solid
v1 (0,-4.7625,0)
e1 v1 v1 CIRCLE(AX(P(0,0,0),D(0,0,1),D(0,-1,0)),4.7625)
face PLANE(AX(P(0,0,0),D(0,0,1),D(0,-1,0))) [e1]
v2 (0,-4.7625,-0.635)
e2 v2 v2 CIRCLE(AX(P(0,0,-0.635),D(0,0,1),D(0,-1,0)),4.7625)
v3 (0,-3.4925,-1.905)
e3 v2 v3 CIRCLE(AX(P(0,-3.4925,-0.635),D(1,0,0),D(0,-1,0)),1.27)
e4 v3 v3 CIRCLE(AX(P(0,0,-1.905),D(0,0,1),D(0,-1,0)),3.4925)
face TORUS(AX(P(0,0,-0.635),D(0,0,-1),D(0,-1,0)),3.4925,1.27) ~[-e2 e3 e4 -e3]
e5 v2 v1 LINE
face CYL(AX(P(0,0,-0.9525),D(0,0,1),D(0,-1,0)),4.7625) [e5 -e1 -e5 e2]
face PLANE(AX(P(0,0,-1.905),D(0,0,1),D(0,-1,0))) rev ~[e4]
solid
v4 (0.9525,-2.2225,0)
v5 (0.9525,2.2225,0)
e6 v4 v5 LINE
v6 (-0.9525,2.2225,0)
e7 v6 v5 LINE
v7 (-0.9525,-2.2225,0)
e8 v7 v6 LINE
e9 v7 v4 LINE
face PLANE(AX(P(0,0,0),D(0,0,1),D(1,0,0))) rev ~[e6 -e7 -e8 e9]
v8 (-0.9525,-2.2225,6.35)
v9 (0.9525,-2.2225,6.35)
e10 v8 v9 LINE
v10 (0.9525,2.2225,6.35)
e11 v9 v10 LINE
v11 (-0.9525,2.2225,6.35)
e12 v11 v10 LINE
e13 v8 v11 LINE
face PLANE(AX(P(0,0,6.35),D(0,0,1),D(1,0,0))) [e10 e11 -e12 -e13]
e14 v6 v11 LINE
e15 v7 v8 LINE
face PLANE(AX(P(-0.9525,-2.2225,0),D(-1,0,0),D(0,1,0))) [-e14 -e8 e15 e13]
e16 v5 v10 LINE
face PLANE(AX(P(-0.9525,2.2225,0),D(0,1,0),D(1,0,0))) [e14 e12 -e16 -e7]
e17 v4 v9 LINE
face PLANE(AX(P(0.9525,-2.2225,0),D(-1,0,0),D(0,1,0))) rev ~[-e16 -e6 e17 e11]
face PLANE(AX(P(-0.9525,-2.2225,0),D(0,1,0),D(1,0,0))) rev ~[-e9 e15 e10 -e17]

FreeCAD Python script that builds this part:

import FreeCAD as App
import Part
import Sketcher

V = App.Vector
Q = App.Units.Quantity


def edges_at(feature, points):
    """Names of the edges that pass closest to the given points."""
    edges = feature.Shape.Edges
    near = lambda p: min(range(len(edges)), key=lambda i: edges[i].distToShape(Part.Vertex(*p))[0])
    return sorted({f"Edge{near(p) + 1}" for p in points})


def add_polygon(sketch, points):
    """Adds a closed chain of lines whose ends are joined by coincident constraints."""
    first, n = sketch.GeometryCount, len(points)
    for a, b in zip(points, points[1:] + points[:1]):
        sketch.addGeometry(Part.LineSegment(App.Vector(*a, 0), App.Vector(*b, 0)), False)
    for i in range(n):
        sketch.addConstraint(Sketcher.Constraint("Coincident", first + i, 2, first + (i + 1) % n, 1))

doc = App.newDocument("Part")
params = doc.addObject("Spreadsheet::Sheet", "Params")
for row, (alias, value) in enumerate([
    ("sketch1_width", "0.1875 in"),
    ("sketch1_height", "0.075 in"),
    ("revolution_angle", "360 deg"),
    ("fillet_radius", "0.05 in"),
    ("sketch2_width", "0.075 in"),
    ("sketch2_height", "0.175 in"),
    ("pad1_length", "0.25 in"),
], start=1):
    params.set(f"A{row}", alias)
    params.set(f"B{row}", "=" + value)
    params.setAlias(f"B{row}", alias)

body = doc.addObject("PartDesign::Body", "Body")

# Sketch on YZ plane
sketch1 = body.newObject("Sketcher::SketchObject", "Sketch")
sketch1.AttachmentSupport = (doc.getObject("YZ_Plane"), [""])
sketch1.MapMode = "FlatFace"
add_polygon(sketch1, [(-4.8, 0), (-4.8, -1.9), (0, -1.9), (0, 0)])  # lines 0-3
sketch1.addConstraint([
    Sketcher.Constraint("Vertical", 0),
    Sketcher.Constraint("Horizontal", 1),
    Sketcher.Constraint("Vertical", 2),
    Sketcher.Constraint("Horizontal", 3),
    Sketcher.Constraint("Coincident", 2, 2, -1, 1),
    Sketcher.Constraint("DistanceX", 1, 1, 1, 2, Q("0.1875 in")),
    Sketcher.Constraint("DistanceY", 0, 2, 0, 1, Q("0.075 in")),
])
sketch1.setExpression("Constraints[9]", "Params.sketch1_width")
sketch1.setExpression("Constraints[10]", "Params.sketch1_height")
revolution = body.newObject("PartDesign::Revolution", "Revolution")
revolution.Profile = sketch1
revolution.ReferenceAxis = (sketch1, ["V_Axis"])
revolution.setExpression("Angle", "Params.revolution_angle")
doc.recompute()

fillet = body.newObject("PartDesign::Fillet", "Fillet")
fillet.Base = (revolution, edges_at(revolution, [(0, 4.763, -1.905)]))
fillet.setExpression("Radius", "Params.fillet_radius")
body2 = doc.addObject("PartDesign::Body", "Body001")

# Sketch on XY plane
sketch2 = body2.newObject("Sketcher::SketchObject", "Sketch001")
sketch2.AttachmentSupport = (doc.getObject("XY_Plane001"), [""])
sketch2.MapMode = "FlatFace"
add_polygon(sketch2, [(-1, 2.2), (-1, -2.2), (1, -2.2), (1, 2.2)])  # lines 0-3
sketch2.addConstraint([
    Sketcher.Constraint("Vertical", 0),
    Sketcher.Constraint("Horizontal", 1),
    Sketcher.Constraint("Vertical", 2),
    Sketcher.Constraint("Horizontal", 3),
    Sketcher.Constraint("Symmetric", 0, 2, 2, 2, -1, 1),
    Sketcher.Constraint("DistanceX", 1, 1, 1, 2, Q("0.075 in")),
    Sketcher.Constraint("DistanceY", 0, 2, 0, 1, Q("0.175 in")),
])
sketch2.setExpression("Constraints[9]", "Params.sketch2_width")
sketch2.setExpression("Constraints[10]", "Params.sketch2_height")
pad1 = body2.newObject("PartDesign::Pad", "Pad")
pad1.Profile = sketch2
pad1.setExpression("Length", "Params.pad1_length")

doc.recompute()
